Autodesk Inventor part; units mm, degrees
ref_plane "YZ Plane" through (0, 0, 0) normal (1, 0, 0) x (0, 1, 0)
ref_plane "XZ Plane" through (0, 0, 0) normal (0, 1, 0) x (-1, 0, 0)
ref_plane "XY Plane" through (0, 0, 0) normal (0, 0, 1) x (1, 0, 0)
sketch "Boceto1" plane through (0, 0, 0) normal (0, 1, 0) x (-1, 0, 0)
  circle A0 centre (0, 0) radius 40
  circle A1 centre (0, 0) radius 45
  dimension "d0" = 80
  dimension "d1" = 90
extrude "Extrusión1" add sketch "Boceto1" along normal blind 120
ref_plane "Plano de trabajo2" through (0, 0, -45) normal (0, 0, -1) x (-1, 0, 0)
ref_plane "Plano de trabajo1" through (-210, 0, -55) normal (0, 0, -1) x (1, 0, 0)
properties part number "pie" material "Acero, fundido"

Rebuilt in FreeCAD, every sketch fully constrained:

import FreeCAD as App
import Part
import Sketcher

V = App.Vector

doc = App.newDocument("Part")
body = doc.addObject("PartDesign::Body", "Body")

sketch1 = body.newObject("Sketcher::SketchObject", "Sketch")
sketch1.AttachmentSupport = (doc.getObject("XZ_Plane"), [""])
sketch1.MapMode = "FlatFace"
sketch1.addGeometry(Part.Circle(V(0, 0, 0), V(0, 0, 1), 45), False)
sketch1.addGeometry(Part.Circle(V(0, 0, 0), V(0, 0, 1), 40), False)
sketch1.addConstraint(Sketcher.Constraint("Coincident", 0, 3, -1, 1))
sketch1.addConstraint(Sketcher.Constraint("Coincident", 1, 3, -1, 1))
sketch1.addConstraint(Sketcher.Constraint("Diameter", 0, 90.0))
sketch1.addConstraint(Sketcher.Constraint("Diameter", 1, 80.0))
pad1 = body.newObject("PartDesign::Pad", "Pad")
pad1.Profile = sketch1
pad1.Length = 120
pad1.Reversed = True

doc.recompute()
